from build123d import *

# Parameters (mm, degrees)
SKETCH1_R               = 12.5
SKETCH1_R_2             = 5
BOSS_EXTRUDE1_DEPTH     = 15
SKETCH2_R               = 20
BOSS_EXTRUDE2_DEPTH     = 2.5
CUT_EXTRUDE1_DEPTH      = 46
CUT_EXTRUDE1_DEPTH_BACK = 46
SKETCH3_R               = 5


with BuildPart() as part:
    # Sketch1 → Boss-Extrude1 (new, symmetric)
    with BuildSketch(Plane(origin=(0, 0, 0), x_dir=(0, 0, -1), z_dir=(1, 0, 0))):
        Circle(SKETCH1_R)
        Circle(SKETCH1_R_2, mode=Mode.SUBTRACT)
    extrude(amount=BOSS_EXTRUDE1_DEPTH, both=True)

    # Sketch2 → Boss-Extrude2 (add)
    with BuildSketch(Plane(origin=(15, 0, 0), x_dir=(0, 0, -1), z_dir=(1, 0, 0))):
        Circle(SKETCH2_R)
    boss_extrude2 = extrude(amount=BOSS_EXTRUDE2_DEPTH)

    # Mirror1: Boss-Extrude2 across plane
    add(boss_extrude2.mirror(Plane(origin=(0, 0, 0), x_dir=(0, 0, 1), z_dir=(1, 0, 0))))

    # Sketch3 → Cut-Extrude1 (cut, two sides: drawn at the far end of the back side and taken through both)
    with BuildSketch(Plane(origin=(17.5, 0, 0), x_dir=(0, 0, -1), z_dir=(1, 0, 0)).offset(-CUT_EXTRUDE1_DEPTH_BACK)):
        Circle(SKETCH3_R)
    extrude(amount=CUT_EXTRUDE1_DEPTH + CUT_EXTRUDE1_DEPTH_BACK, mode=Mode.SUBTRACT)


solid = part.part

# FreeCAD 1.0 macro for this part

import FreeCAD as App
import Part
import Sketcher
Q = App.Units.Quantity

doc = App.newDocument("Part")
body = doc.addObject("PartDesign::Body", "Body")

sketch1 = body.newObject("Sketcher::SketchObject", "Sketch")
sketch1.AttachmentSupport = (doc.getObject("YZ_Plane"), [""])
sketch1.MapMode = "FlatFace"
sketch1.addGeometry(Part.Circle(App.Vector(0, 0, 0), App.Vector(0, 0, 1), 12.5), False)
sketch1.addGeometry(Part.Circle(App.Vector(0, 0, 0), App.Vector(0, 0, 1), 5), False)
sketch1.addConstraint(Sketcher.Constraint("Coincident", 0, 3, -1, 1))
sketch1.addConstraint(Sketcher.Constraint("Coincident", 1, 3, -1, 1))
sketch1.addConstraint(Sketcher.Constraint("Diameter", 0, Q("25 mm")))
sketch1.addConstraint(Sketcher.Constraint("Diameter", 1, Q("10 mm")))
pad1 = body.newObject("PartDesign::Pad", "Pad")
pad1.Profile = sketch1
pad1.Length = 30
pad1.Midplane = True

sketch2 = body.newObject("Sketcher::SketchObject", "Sketch001")
sketch2.AttachmentSupport = (doc.getObject("YZ_Plane"), [""])
sketch2.MapMode = "FlatFace"
sketch2.AttachmentOffset = App.Placement(App.Vector(0, 0, 15), App.Rotation())
sketch2.addGeometry(Part.Circle(App.Vector(0, 0, 0), App.Vector(0, 0, 1), 20), False)
sketch2.addConstraint(Sketcher.Constraint("Coincident", 0, 3, -1, 1))
sketch2.addConstraint(Sketcher.Constraint("Diameter", 0, Q("40 mm")))
pad2 = body.newObject("PartDesign::Pad", "Pad001")
pad2.Profile = sketch2
pad2.Length = 2.5
doc.recompute()

mirrored = body.newObject("PartDesign::Mirrored", "Mirrored")
mirrored.Originals = [pad2]
mirrored.MirrorPlane = (doc.getObject("YZ_Plane"), [""])
body.Tip = mirrored

sketch3 = body.newObject("Sketcher::SketchObject", "Sketch002")
sketch3.AttachmentSupport = (doc.getObject("YZ_Plane"), [""])
sketch3.MapMode = "FlatFace"
sketch3.AttachmentOffset = App.Placement(App.Vector(0, 0, 17.5), App.Rotation())
sketch3.addGeometry(Part.Circle(App.Vector(0, 0, 0), App.Vector(0, 0, 1), 5), False)
sketch3.addConstraint(Sketcher.Constraint("Coincident", 0, 3, -1, 1))
sketch3.addConstraint(Sketcher.Constraint("Diameter", 0, Q("10 mm")))
pocket1 = body.newObject("PartDesign::Pocket", "Pocket")
pocket1.Profile = sketch3
pocket1.Type = "ThroughAll"
pocket1.Midplane = True

doc.recompute()
